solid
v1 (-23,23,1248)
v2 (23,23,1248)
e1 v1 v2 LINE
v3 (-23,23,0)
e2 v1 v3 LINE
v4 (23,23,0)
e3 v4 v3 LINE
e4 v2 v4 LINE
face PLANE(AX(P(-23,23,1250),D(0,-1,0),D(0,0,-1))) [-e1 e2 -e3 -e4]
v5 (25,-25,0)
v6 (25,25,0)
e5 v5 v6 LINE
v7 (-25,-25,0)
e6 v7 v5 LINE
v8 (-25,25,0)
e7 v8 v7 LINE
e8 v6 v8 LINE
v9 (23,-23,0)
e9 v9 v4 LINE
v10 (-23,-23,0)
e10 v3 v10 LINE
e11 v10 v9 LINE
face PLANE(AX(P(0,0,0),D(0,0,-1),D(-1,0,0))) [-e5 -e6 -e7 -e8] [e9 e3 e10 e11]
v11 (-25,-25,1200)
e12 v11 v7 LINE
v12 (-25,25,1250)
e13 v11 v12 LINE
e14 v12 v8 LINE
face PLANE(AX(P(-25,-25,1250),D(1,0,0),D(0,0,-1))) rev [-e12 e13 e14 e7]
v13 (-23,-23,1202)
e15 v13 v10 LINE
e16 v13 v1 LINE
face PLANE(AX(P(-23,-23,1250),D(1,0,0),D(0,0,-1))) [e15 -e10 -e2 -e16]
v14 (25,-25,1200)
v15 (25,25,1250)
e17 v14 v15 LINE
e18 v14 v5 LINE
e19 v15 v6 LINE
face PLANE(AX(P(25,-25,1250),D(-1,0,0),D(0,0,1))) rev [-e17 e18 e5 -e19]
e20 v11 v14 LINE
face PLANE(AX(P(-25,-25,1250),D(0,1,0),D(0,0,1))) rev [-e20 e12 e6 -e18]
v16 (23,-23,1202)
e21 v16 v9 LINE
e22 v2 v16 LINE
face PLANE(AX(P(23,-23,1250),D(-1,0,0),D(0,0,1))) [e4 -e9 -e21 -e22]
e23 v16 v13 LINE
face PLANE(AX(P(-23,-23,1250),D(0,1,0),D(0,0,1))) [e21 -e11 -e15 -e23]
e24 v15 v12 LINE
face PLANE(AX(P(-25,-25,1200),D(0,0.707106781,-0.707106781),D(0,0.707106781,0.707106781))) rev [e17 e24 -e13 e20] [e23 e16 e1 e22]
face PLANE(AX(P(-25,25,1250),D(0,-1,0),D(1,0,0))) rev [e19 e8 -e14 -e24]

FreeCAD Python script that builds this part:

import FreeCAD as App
import Part
import Sketcher

V = App.Vector


def add_polygon(sketch, points):
    """Adds a closed chain of lines whose ends are joined by coincident constraints."""
    first, n = sketch.GeometryCount, len(points)
    for a, b in zip(points, points[1:] + points[:1]):
        sketch.addGeometry(Part.LineSegment(App.Vector(*a, 0), App.Vector(*b, 0)), False)
    for i in range(n):
        sketch.addConstraint(Sketcher.Constraint("Coincident", first + i, 2, first + (i + 1) % n, 1))

doc = App.newDocument("Part")
params = doc.addObject("Spreadsheet::Sheet", "Params")
for row, (alias, value) in enumerate([
    ("sketch1_width", "50 mm"),
    ("sketch1_width2", "46 mm"),
    ("pad1_length", "1250 mm"),
    ("sketch2_width", "50 mm"),
], start=1):
    params.set(f"A{row}", alias)
    params.set(f"B{row}", "=" + value)
    params.setAlias(f"B{row}", alias)

body = doc.addObject("PartDesign::Body", "Body")

# Sketch on XY plane
sketch1 = doc.addObject("Sketcher::SketchObject", "Sketch")
body.addObject(sketch1)
sketch1.AttachmentSupport = (doc.XY_Plane, [""])
sketch1.MapMode = "FlatFace"
add_polygon(sketch1, [(-25, 25), (-25, -25), (25, -25), (25, 25)])  # lines 0-3
add_polygon(sketch1, [(23, -23), (-23, -23), (-23, 23), (23, 23)])  # lines 4-7
sketch1.addConstraint(Sketcher.Constraint("Vertical", 0))
sketch1.addConstraint(Sketcher.Constraint("Horizontal", 1))
sketch1.addConstraint(Sketcher.Constraint("Vertical", 2))
sketch1.addConstraint(Sketcher.Constraint("Horizontal", 3))
sketch1.addConstraint(Sketcher.Constraint("Horizontal", 4))
sketch1.addConstraint(Sketcher.Constraint("Vertical", 5))
sketch1.addConstraint(Sketcher.Constraint("Horizontal", 6))
sketch1.addConstraint(Sketcher.Constraint("Vertical", 7))
sketch1.addConstraint(Sketcher.Constraint("Symmetric", 0, 2, 2, 2, -1, 1))
sketch1.addConstraint(Sketcher.Constraint("Symmetric", 4, 2, 6, 2, -1, 1))
sketch1.addConstraint(Sketcher.Constraint("Equal", 3, 0))
sketch1.addConstraint(Sketcher.Constraint("Equal", 6, 5))
sketch1.addConstraint(Sketcher.Constraint("DistanceX", 1, 1, 1, 2, 50.0))
sketch1.addConstraint(Sketcher.Constraint("DistanceX", 4, 2, 4, 1, 46.0))
sketch1.setExpression("Constraints[20]", "Params.sketch1_width")
sketch1.setExpression("Constraints[21]", "Params.sketch1_width2")
pad1 = doc.addObject("PartDesign::Pad", "Pad")
body.addObject(pad1)
pad1.Profile = sketch1
pad1.setExpression("Length", "Params.pad1_length")

# Sketch on YZ plane
sketch2 = doc.addObject("Sketcher::SketchObject", "Sketch001")
body.addObject(sketch2)
sketch2.AttachmentSupport = (doc.YZ_Plane, [""])
sketch2.MapMode = "FlatFace"
sketch2.AttachmentOffset = App.Placement(V(0, 0, 25), App.Rotation())
add_polygon(sketch2, [(25, 1250), (-25, 1250), (-25, 1200)])  # lines 0-2
sketch2.addConstraint(Sketcher.Constraint("Horizontal", 0))
sketch2.addConstraint(Sketcher.Constraint("Vertical", 1))
sketch2.addConstraint(Sketcher.Constraint("Equal", 0, 1))
sketch2.addConstraint(Sketcher.Constraint("DistanceX", 0, 2, 0, 1, 50.0))
sketch2.addConstraint(Sketcher.Constraint("DistanceX", 0, 2, -1, 1, 25.0))
sketch2.addConstraint(Sketcher.Constraint("DistanceY", -1, 1, 0, 2, 1250.0))
sketch2.setExpression("Constraints[6]", "Params.sketch2_width")
pocket1 = doc.addObject("PartDesign::Pocket", "Pocket")
body.addObject(pocket1)
pocket1.Profile = sketch2
pocket1.Type = "ThroughAll"

doc.recompute()
